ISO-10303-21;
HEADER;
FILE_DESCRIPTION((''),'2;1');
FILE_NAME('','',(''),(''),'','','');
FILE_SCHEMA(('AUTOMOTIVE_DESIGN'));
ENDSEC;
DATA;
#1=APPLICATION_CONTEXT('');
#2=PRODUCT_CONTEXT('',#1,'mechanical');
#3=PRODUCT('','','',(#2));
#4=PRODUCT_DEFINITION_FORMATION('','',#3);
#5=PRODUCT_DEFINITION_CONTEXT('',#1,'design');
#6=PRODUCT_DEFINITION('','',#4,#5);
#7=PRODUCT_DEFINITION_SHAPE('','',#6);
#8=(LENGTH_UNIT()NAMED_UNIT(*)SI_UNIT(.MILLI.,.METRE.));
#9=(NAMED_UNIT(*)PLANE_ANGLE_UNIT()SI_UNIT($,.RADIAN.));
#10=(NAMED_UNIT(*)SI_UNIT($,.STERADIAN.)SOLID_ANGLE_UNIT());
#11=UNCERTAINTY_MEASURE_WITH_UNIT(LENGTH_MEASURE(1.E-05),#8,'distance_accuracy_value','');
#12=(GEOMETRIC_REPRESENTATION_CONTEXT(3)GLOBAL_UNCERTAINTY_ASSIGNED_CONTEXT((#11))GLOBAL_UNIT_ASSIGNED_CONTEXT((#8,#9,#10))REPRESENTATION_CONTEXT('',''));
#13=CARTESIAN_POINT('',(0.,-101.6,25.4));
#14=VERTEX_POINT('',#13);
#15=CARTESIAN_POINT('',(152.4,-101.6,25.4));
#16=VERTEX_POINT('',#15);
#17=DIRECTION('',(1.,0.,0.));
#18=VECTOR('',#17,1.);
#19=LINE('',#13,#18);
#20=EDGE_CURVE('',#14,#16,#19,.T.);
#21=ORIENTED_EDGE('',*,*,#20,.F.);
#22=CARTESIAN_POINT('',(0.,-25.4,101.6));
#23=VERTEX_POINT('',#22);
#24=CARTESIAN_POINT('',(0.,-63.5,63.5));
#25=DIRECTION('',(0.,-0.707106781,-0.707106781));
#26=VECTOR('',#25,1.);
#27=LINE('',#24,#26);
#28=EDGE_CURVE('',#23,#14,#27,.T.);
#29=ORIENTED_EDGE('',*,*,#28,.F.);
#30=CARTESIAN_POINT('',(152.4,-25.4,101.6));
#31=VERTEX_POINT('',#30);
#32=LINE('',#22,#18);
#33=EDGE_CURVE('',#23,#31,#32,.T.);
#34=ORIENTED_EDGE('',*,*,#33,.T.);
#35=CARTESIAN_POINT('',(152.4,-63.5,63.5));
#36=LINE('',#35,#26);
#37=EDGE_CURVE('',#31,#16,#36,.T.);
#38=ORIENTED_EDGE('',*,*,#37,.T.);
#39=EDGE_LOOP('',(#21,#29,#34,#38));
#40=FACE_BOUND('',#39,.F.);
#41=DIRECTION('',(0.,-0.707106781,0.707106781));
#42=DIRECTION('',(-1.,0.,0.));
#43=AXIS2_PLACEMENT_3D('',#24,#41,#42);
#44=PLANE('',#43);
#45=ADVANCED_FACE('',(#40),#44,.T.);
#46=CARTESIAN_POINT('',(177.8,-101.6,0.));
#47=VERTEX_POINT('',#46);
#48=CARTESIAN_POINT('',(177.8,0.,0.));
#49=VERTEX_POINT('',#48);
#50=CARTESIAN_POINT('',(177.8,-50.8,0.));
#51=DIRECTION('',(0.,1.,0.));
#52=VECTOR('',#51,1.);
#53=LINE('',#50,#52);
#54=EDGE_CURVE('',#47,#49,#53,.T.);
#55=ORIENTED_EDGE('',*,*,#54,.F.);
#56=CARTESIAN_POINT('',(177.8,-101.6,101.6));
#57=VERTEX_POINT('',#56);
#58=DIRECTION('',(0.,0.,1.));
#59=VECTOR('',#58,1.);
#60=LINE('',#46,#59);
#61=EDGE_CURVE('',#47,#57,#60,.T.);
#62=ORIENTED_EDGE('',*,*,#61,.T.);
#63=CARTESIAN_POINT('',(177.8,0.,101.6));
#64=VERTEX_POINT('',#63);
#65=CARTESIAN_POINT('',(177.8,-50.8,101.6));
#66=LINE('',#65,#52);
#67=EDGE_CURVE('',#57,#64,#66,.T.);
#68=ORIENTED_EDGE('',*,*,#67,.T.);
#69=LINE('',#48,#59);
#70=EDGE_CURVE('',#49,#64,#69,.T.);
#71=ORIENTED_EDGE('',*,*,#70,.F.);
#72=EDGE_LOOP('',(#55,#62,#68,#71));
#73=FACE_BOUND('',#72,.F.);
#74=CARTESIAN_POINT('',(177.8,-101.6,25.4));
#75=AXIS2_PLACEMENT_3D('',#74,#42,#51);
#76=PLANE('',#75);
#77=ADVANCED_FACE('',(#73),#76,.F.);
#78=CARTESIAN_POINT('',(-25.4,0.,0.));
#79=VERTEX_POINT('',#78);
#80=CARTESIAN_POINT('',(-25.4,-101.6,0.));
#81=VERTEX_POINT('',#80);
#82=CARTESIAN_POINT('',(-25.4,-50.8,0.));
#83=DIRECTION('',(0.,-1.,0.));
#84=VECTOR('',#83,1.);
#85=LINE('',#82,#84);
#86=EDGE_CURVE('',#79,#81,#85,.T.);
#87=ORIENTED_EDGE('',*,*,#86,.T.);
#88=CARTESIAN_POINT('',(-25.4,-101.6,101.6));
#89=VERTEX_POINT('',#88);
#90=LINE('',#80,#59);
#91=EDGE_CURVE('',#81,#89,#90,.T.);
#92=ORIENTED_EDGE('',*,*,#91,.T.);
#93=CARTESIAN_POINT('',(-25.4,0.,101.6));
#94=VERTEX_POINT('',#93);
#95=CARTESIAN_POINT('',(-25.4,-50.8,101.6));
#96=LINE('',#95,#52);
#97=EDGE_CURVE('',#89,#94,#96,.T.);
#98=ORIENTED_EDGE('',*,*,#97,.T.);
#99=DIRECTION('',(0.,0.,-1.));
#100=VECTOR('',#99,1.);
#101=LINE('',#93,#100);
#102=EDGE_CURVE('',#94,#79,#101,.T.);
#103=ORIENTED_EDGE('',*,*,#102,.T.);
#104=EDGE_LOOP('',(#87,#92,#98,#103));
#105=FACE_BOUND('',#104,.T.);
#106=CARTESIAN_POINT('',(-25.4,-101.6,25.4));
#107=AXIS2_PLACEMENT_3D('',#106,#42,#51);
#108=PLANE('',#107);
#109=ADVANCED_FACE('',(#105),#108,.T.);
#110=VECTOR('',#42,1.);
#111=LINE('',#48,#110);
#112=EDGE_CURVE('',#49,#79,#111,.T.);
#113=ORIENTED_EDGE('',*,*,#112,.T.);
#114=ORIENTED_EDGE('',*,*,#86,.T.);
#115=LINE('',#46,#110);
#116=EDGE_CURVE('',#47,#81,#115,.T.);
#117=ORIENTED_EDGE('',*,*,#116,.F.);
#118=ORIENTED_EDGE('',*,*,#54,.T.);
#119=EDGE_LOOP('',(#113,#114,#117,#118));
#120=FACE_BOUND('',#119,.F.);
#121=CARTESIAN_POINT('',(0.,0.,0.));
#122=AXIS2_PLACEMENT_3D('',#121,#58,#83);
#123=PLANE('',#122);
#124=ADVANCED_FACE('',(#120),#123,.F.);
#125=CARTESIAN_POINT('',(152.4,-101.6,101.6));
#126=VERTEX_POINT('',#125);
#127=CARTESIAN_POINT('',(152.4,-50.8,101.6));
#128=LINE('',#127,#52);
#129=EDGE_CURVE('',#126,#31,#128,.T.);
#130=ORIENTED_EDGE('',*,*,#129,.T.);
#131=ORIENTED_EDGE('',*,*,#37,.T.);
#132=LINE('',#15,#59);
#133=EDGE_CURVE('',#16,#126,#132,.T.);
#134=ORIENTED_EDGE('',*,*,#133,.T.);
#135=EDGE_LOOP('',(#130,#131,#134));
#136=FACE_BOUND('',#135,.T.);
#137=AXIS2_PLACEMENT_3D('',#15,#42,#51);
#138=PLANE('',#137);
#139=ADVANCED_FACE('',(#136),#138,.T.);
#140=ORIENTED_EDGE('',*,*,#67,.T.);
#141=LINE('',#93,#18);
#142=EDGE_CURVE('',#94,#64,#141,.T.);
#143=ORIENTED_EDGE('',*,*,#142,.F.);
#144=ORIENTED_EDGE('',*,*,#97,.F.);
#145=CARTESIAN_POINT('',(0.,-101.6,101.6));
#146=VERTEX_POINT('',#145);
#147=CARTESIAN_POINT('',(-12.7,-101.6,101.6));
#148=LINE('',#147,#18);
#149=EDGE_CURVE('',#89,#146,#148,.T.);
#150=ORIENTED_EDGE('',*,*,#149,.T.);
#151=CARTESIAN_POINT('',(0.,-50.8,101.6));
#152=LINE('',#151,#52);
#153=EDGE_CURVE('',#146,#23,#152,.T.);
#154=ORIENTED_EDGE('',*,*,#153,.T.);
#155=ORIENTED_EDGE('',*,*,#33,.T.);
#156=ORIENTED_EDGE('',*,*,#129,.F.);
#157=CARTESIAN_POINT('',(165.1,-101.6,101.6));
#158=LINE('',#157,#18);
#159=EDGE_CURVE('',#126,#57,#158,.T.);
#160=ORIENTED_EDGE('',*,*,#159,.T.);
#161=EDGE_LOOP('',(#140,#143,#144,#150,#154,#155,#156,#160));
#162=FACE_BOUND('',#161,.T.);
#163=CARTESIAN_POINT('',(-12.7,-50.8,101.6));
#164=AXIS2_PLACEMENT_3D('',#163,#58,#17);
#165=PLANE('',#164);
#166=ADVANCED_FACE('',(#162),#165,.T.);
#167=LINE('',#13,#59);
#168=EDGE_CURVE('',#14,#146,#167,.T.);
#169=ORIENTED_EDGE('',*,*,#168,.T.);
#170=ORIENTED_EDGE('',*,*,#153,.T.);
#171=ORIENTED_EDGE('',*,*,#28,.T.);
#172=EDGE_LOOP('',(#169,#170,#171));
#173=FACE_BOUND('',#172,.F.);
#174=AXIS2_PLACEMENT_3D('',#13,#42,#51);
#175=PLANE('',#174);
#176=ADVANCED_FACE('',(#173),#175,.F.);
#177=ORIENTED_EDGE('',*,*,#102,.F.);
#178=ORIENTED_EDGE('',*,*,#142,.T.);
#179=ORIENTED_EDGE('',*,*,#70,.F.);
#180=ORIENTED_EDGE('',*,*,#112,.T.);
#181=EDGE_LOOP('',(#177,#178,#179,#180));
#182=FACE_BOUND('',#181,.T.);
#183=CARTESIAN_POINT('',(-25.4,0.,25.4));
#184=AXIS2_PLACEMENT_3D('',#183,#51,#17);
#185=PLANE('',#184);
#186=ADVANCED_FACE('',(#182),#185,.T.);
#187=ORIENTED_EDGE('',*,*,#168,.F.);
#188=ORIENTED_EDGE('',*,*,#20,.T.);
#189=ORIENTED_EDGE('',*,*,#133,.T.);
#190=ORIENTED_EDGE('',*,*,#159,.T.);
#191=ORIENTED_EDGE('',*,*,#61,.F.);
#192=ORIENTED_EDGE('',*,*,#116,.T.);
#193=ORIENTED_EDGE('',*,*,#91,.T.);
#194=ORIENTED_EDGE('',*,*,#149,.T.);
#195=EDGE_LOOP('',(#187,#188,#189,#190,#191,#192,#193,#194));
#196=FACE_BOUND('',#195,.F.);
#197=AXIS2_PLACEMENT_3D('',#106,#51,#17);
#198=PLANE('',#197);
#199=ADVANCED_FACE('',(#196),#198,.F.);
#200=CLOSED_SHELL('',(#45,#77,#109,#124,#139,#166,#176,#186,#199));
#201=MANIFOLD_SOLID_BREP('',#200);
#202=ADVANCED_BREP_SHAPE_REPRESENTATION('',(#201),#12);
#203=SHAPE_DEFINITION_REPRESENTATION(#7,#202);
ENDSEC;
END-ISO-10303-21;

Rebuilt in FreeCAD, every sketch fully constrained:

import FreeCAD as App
import Part
import Sketcher
Q = App.Units.Quantity


def edges_at(feature, points):
    """Names of the edges that pass closest to the given points."""
    edges = feature.Shape.Edges
    near = lambda p: min(range(len(edges)), key=lambda i: edges[i].distToShape(Part.Vertex(*p))[0])
    return sorted({f"Edge{near(p) + 1}" for p in points})


def add_polygon(sketch, points):
    """Adds a closed chain of lines whose ends are joined by coincident constraints."""
    first, n = sketch.GeometryCount, len(points)
    for a, b in zip(points, points[1:] + points[:1]):
        sketch.addGeometry(Part.LineSegment(App.Vector(*a, 0), App.Vector(*b, 0)), False)
    for i in range(n):
        sketch.addConstraint(Sketcher.Constraint("Coincident", first + i, 2, first + (i + 1) % n, 1))

doc = App.newDocument("Part")
body = doc.addObject("PartDesign::Body", "Body")

# Sketch on XZ plane
sketch1 = body.newObject("Sketcher::SketchObject", "Sketch")
sketch1.AttachmentSupport = (doc.getObject("XZ_Plane"), [""])
sketch1.MapMode = "FlatFace"
add_polygon(sketch1, [(0, 102), (0, 0), (152, 0), (152, 102)])  # lines 0-3
sketch1.addConstraint([
    Sketcher.Constraint("Vertical", 0),
    Sketcher.Constraint("Horizontal", 1),
    Sketcher.Constraint("Vertical", 2),
    Sketcher.Constraint("Horizontal", 3),
    Sketcher.Constraint("Coincident", 0, 2, -1, 1),
    Sketcher.Constraint("DistanceX", 1, 1, 1, 2, Q("6 in")),
    Sketcher.Constraint("DistanceY", 0, 2, 0, 1, Q("4 in")),
])
pad1 = body.newObject("PartDesign::Pad", "Pad")
pad1.Profile = sketch1
pad1.Length = Q("4 in")
doc.recompute()

chamfer = body.newObject("PartDesign::Chamfer", "Chamfer")
chamfer.Base = (pad1, edges_at(pad1, [(76.2, -101.6, 101.6)]))
chamfer.Size = Q("3 in")

# Sketch on YZ plane
sketch2 = body.newObject("Sketcher::SketchObject", "Sketch001")
sketch2.AttachmentSupport = (doc.getObject("YZ_Plane"), [""])
sketch2.MapMode = "FlatFace"
sketch2.AttachmentOffset = App.Placement(App.Vector(0, 0, 6 * 25.4), App.Rotation())
add_polygon(sketch2, [(-102, 25), (-102, 0), (0, 0), (0, 25)])  # lines 0-3
sketch2.addConstraint([
    Sketcher.Constraint("Vertical", 0),
    Sketcher.Constraint("Horizontal", 1),
    Sketcher.Constraint("Vertical", 2),
    Sketcher.Constraint("Horizontal", 3),
    Sketcher.Constraint("Coincident", 1, 2, -1, 1),
    Sketcher.Constraint("DistanceX", 1, 1, 1, 2, Q("4 in")),
    Sketcher.Constraint("DistanceY", 0, 2, 0, 1, Q("1 in")),
])
pad2 = body.newObject("PartDesign::Pad", "Pad001")
pad2.Profile = sketch2
pad2.Length = Q("1 in")

# Sketch on XY plane
sketch3 = body.newObject("Sketcher::SketchObject", "Sketch002")
sketch3.AttachmentSupport = (doc.getObject("XY_Plane"), [""])
sketch3.MapMode = "FlatFace"
sketch3.AttachmentOffset = App.Placement(App.Vector(0, 0, 1 * 25.4), App.Rotation())
add_polygon(sketch3, [(152, 0), (152, -102), (178, -102), (178, 0)])  # lines 0-3
sketch3.addConstraint([
    Sketcher.Constraint("Vertical", 0),
    Sketcher.Constraint("Horizontal", 1),
    Sketcher.Constraint("Vertical", 2),
    Sketcher.Constraint("Horizontal", 3),
    Sketcher.Constraint("PointOnObject", 2, 2, -1),
    Sketcher.Constraint("DistanceX", 1, 1, 1, 2, Q("1 in")),
    Sketcher.Constraint("DistanceY", 0, 2, 0, 1, Q("4 in")),
    Sketcher.Constraint("DistanceX", -1, 1, 0, 2, Q("6 in")),
])
pad3 = body.newObject("PartDesign::Pad", "Pad002")
pad3.Profile = sketch3
pad3.Length = Q("3 in")

# Sketch on YZ plane
sketch4 = body.newObject("Sketcher::SketchObject", "Sketch003")
sketch4.AttachmentSupport = (doc.getObject("YZ_Plane"), [""])
sketch4.MapMode = "FlatFace"
add_polygon(sketch4, [(0, 25), (0, 0), (-102, 0), (-102, 25)])  # lines 0-3
sketch4.addConstraint([
    Sketcher.Constraint("Vertical", 0),
    Sketcher.Constraint("Horizontal", 1),
    Sketcher.Constraint("Vertical", 2),
    Sketcher.Constraint("Horizontal", 3),
    Sketcher.Constraint("Coincident", 0, 2, -1, 1),
    Sketcher.Constraint("DistanceX", 1, 2, 1, 1, Q("4 in")),
    Sketcher.Constraint("DistanceY", 0, 2, 0, 1, Q("1 in")),
])
pad4 = body.newObject("PartDesign::Pad", "Pad003")
pad4.Profile = sketch4
pad4.Length = Q("1 in")
pad4.Reversed = True

# Sketch on XY plane
sketch5 = body.newObject("Sketcher::SketchObject", "Sketch004")
sketch5.AttachmentSupport = (doc.getObject("XY_Plane"), [""])
sketch5.MapMode = "FlatFace"
sketch5.AttachmentOffset = App.Placement(App.Vector(0, 0, 1 * 25.4), App.Rotation())
add_polygon(sketch5, [(-25, 0), (-25, -102), (0, -102), (0, 0)])  # lines 0-3
sketch5.addConstraint([
    Sketcher.Constraint("Vertical", 0),
    Sketcher.Constraint("Horizontal", 1),
    Sketcher.Constraint("Vertical", 2),
    Sketcher.Constraint("Horizontal", 3),
    Sketcher.Constraint("Coincident", 2, 2, -1, 1),
    Sketcher.Constraint("DistanceX", 1, 1, 1, 2, Q("1 in")),
    Sketcher.Constraint("DistanceY", 0, 2, 0, 1, Q("4 in")),
])
pad5 = body.newObject("PartDesign::Pad", "Pad004")
pad5.Profile = sketch5
pad5.Length = Q("3 in")

doc.recompute()
